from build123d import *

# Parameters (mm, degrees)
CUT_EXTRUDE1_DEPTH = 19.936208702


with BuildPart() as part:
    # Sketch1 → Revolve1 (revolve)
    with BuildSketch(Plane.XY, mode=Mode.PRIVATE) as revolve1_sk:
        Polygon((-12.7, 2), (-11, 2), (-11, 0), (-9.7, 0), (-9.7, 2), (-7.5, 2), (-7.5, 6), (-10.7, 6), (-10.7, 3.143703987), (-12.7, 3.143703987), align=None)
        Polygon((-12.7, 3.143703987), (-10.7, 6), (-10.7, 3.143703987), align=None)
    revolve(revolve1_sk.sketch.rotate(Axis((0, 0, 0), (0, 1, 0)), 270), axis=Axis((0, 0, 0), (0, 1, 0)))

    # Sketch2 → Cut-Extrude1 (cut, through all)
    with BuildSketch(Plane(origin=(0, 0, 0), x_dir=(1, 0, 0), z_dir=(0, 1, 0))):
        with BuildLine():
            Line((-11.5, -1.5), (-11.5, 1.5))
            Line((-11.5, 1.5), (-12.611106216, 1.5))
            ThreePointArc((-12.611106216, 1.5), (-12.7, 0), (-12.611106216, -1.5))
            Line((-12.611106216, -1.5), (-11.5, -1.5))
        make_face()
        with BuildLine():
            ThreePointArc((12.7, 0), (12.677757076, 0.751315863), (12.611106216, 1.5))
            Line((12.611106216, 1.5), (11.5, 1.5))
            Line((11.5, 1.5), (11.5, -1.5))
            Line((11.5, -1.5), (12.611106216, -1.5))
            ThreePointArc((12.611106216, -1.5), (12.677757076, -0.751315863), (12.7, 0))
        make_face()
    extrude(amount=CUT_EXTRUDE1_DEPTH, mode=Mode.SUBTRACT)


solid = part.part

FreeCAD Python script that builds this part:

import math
import FreeCAD as App
import Part
import Sketcher
Q = App.Units.Quantity


def add_polygon(sketch, points):
    """Adds a closed chain of lines whose ends are joined by coincident constraints."""
    first, n = sketch.GeometryCount, len(points)
    for a, b in zip(points, points[1:] + points[:1]):
        sketch.addGeometry(Part.LineSegment(App.Vector(*a, 0), App.Vector(*b, 0)), False)
    for i in range(n):
        sketch.addConstraint(Sketcher.Constraint("Coincident", first + i, 2, first + (i + 1) % n, 1))

doc = App.newDocument("Part")
params = doc.addObject("Spreadsheet::Sheet", "Params")
for row, (alias, value) in enumerate([
    ("sketch1_height", "2 mm"),
    ("sketch1_height2", "4 mm"),
    ("sketch1_width", "1.7 mm"),
    ("sketch1_width2", "1.3 mm"),
    ("sketch1_width3", "2.2 mm"),
    ("revolution_angle", "360 deg"),
    ("sketch2_radius", "12.7 mm"),
    ("sketch2_height", "3 mm"),
], start=1):
    params.set(f"A{row}", alias)
    params.set(f"B{row}", "=" + value)
    params.setAlias(f"B{row}", alias)

body = doc.addObject("PartDesign::Body", "Body")

# Sketch on XY plane
sketch1 = body.newObject("Sketcher::SketchObject", "Sketch")
sketch1.AttachmentSupport = (doc.getObject("XY_Plane"), [""])
sketch1.MapMode = "FlatFace"
add_polygon(sketch1, [(-12.7, 2), (-11, 2), (-11, 0), (-9.7, 0), (-9.7, 2), (-7.5, 2), (-7.5, 6), (-10.7, 6), (-12.7, 3.1)])  # lines 0-8
sketch1.addConstraint([
    Sketcher.Constraint("Horizontal", 0),
    Sketcher.Constraint("Vertical", 1),
    Sketcher.Constraint("Horizontal", 2),
    Sketcher.Constraint("Vertical", 3),
    Sketcher.Constraint("Horizontal", 4),
    Sketcher.Constraint("Vertical", 5),
    Sketcher.Constraint("Horizontal", 6),
    Sketcher.Constraint("Vertical", 8),
    Sketcher.Constraint("PointOnObject", 1, 2, -1),
    Sketcher.Constraint("Horizontal", 0, 2, 3, 2),
    Sketcher.Constraint("DistanceY", 1, 2, 1, 1, 2.0),
    Sketcher.Constraint("DistanceY", 5, 1, 5, 2, 4.0),
    Sketcher.Constraint("Angle", 7, Q("-125 deg")),
    Sketcher.Constraint("DistanceX", 0, 1, 0, 2, 1.7),
    Sketcher.Constraint("DistanceX", 2, 1, 2, 2, 1.3),
    Sketcher.Constraint("DistanceX", 4, 1, 4, 2, 2.2),
    Sketcher.Constraint("DistanceX", 6, 2, 6, 1, 3.2),
    Sketcher.Constraint("DistanceX", 0, 2, -1, 1, 11.0),
])
sketch1.setExpression("Constraints[19]", "Params.sketch1_height")
sketch1.setExpression("Constraints[20]", "Params.sketch1_height2")
sketch1.setExpression("Constraints[22]", "Params.sketch1_width")
sketch1.setExpression("Constraints[23]", "Params.sketch1_width2")
sketch1.setExpression("Constraints[24]", "Params.sketch1_width3")
revolution = body.newObject("PartDesign::Revolution", "Revolution")
revolution.Profile = sketch1
revolution.ReferenceAxis = (sketch1, ["V_Axis"])
revolution.setExpression("Angle", "Params.revolution_angle")

# Sketch on XZ plane
sketch2 = body.newObject("Sketcher::SketchObject", "Sketch001")
sketch2.AttachmentSupport = (doc.getObject("XZ_Plane"), [""])
sketch2.MapMode = "FlatFace"
sketch2.addGeometry([
    Part.LineSegment(App.Vector(-11.5, 1.5, 0), App.Vector(-11.5, -1.5, 0)),  # 0
    Part.LineSegment(App.Vector(-11.5, -1.5, 0), App.Vector(-12.6, -1.5, 0)),  # 1
    Part.ArcOfCircle(Part.Circle(App.Vector(0, 0, 0), App.Vector(0, 0, 1), 12.7), math.radians(173.22), math.radians(186.78)),  # 2
    Part.LineSegment(App.Vector(-12.6, 1.5, 0), App.Vector(-11.5, 1.5, 0)),  # 3
    Part.ArcOfCircle(Part.Circle(App.Vector(0, 0, 0), App.Vector(0, 0, 1), 12.7), math.radians(-6.78), math.radians(0)),  # 4
    Part.LineSegment(App.Vector(12.6, -1.5, 0), App.Vector(11.5, -1.5, 0)),  # 5
    Part.LineSegment(App.Vector(11.5, -1.5, 0), App.Vector(11.5, 1.5, 0)),  # 6
    Part.LineSegment(App.Vector(11.5, 1.5, 0), App.Vector(12.6, 1.5, 0)),  # 7
    Part.ArcOfCircle(Part.Circle(App.Vector(0, 0, 0), App.Vector(0, 0, 1), 12.7), math.radians(0), math.radians(6.78)),  # 8
], False)
sketch2.addConstraint([
    Sketcher.Constraint("Coincident", 0, 2, 1, 1),
    Sketcher.Constraint("Coincident", 1, 2, 2, 2),
    Sketcher.Constraint("Coincident", 2, 1, 3, 1),
    Sketcher.Constraint("Coincident", 3, 2, 0, 1),
    Sketcher.Constraint("Coincident", 4, 1, 5, 1),
    Sketcher.Constraint("Coincident", 5, 2, 6, 1),
    Sketcher.Constraint("Coincident", 6, 2, 7, 1),
    Sketcher.Constraint("Coincident", 7, 2, 8, 2),
    Sketcher.Constraint("Tangent", 8, 1, 4, 2),
    Sketcher.Constraint("Vertical", 0),
    Sketcher.Constraint("Horizontal", 1),
    Sketcher.Constraint("Horizontal", 3),
    Sketcher.Constraint("Horizontal", 5),
    Sketcher.Constraint("Vertical", 6),
    Sketcher.Constraint("Horizontal", 7),
    Sketcher.Constraint("Coincident", 2, 3, -1, 1),
    Sketcher.Constraint("Coincident", 4, 3, -1, 1),
    Sketcher.Constraint("Equal", 2, 4),
    Sketcher.Constraint("Equal", 4, 8),
    Sketcher.Constraint("Symmetric", 3, 2, 5, 2, -1, 1),
    Sketcher.Constraint("PointOnObject", 8, 1, -1),
    Sketcher.Constraint("Horizontal", 1, 2, 4, 1),
    Sketcher.Constraint("Horizontal", 3, 2, 6, 2),
    Sketcher.Constraint("Radius", 2, 12.7),
    Sketcher.Constraint("DistanceY", 0, 2, 0, 1, 3.0),
    Sketcher.Constraint("DistanceX", 0, 2, 5, 2, 23.0),
])
sketch2.setExpression("Constraints[23]", "Params.sketch2_radius")
sketch2.setExpression("Constraints[24]", "Params.sketch2_height")
pocket1 = body.newObject("PartDesign::Pocket", "Pocket")
pocket1.Profile = sketch2
pocket1.Type = "ThroughAll"

doc.recompute()
